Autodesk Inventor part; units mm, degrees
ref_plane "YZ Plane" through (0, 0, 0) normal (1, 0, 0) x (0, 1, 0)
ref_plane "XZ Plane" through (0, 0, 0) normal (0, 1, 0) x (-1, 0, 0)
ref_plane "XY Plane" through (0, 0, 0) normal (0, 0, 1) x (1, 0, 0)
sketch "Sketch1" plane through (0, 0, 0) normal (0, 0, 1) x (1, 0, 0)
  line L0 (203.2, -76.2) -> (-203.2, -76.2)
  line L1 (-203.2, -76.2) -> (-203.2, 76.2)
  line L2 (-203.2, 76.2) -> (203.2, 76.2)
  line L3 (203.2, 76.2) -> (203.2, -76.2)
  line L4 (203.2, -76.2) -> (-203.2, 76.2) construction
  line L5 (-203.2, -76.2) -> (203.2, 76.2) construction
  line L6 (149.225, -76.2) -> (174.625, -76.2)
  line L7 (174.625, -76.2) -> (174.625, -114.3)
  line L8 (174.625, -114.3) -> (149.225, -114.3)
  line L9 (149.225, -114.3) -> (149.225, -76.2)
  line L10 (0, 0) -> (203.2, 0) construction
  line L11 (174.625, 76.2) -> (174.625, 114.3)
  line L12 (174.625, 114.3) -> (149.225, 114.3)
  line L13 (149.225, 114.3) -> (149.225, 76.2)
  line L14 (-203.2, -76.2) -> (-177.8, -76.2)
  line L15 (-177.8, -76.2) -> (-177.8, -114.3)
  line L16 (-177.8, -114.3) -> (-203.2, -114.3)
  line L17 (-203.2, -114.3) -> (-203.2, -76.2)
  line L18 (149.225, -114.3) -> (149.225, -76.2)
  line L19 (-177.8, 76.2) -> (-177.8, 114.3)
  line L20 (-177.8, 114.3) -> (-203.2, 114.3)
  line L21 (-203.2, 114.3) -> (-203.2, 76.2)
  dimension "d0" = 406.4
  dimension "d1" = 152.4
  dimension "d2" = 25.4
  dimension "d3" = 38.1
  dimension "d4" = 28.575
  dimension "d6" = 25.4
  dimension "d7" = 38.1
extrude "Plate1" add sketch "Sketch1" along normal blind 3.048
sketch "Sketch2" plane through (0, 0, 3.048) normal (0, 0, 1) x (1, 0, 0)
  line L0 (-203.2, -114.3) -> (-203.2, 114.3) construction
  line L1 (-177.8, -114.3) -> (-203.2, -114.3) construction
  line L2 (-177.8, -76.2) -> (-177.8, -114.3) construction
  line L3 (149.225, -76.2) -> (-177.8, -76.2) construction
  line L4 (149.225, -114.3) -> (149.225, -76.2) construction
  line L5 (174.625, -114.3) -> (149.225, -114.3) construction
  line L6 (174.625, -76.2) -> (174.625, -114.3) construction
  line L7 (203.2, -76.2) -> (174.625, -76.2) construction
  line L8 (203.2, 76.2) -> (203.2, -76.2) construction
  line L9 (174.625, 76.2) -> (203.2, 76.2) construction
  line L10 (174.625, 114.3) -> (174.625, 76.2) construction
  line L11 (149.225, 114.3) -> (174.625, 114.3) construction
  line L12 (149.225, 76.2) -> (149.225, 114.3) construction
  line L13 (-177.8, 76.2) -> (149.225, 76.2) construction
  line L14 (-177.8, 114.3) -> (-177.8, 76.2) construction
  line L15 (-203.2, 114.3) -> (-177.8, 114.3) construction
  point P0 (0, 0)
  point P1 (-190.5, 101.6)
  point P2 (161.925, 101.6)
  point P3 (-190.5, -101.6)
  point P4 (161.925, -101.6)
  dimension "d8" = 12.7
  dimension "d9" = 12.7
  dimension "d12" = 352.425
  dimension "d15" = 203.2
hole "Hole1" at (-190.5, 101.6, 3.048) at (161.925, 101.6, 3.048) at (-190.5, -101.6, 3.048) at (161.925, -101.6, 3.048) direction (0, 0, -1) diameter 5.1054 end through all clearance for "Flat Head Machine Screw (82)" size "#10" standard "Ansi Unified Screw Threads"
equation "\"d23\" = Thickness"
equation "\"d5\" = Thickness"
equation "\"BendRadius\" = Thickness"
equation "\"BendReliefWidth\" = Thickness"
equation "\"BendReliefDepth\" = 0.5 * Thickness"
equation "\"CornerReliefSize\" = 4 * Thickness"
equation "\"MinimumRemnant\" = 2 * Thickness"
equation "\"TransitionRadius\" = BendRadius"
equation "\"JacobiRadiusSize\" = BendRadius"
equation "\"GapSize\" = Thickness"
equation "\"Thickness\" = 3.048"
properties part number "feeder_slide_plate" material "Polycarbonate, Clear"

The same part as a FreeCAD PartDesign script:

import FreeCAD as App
import Part
import Sketcher

V = App.Vector
Q = App.Units.Quantity

doc = App.newDocument("Part")
body = doc.addObject("PartDesign::Body", "Body")

sketch1 = body.newObject("Sketcher::SketchObject", "Sketch")
sketch1.AttachmentSupport = (doc.getObject("XY_Plane"), [""])
sketch1.MapMode = "FlatFace"
sketch1.addGeometry(Part.LineSegment(V(175, -76, 0), V(203, -76, 0)), False)
sketch1.addGeometry(Part.LineSegment(V(203, -76, 0), V(203, 76, 0)), False)
sketch1.addGeometry(Part.LineSegment(V(203, 76, 0), V(175, 76, 0)), False)
sketch1.addGeometry(Part.LineSegment(V(175, 76, 0), V(175, 114, 0)), False)
sketch1.addGeometry(Part.LineSegment(V(175, 114, 0), V(149, 114, 0)), False)
sketch1.addGeometry(Part.LineSegment(V(149, 114, 0), V(149, 76, 0)), False)
sketch1.addGeometry(Part.LineSegment(V(149, 76, 0), V(-178, 76, 0)), False)
sketch1.addGeometry(Part.LineSegment(V(-178, 76, 0), V(-178, 114, 0)), False)
sketch1.addGeometry(Part.LineSegment(V(-178, 114, 0), V(-203, 114, 0)), False)
sketch1.addGeometry(Part.LineSegment(V(-203, 114, 0), V(-203, -114, 0)), False)
sketch1.addGeometry(Part.LineSegment(V(-203, -114, 0), V(-178, -114, 0)), False)
sketch1.addGeometry(Part.LineSegment(V(-178, -114, 0), V(-178, -76, 0)), False)
sketch1.addGeometry(Part.LineSegment(V(-178, -76, 0), V(149, -76, 0)), False)
sketch1.addGeometry(Part.LineSegment(V(149, -76, 0), V(149, -114, 0)), False)
sketch1.addGeometry(Part.LineSegment(V(149, -114, 0), V(175, -114, 0)), False)
sketch1.addGeometry(Part.LineSegment(V(175, -114, 0), V(175, -76, 0)), False)
sketch1.addConstraint(Sketcher.Constraint("Coincident", 0, 2, 1, 1))
sketch1.addConstraint(Sketcher.Constraint("Coincident", 1, 2, 2, 1))
sketch1.addConstraint(Sketcher.Constraint("Coincident", 2, 2, 3, 1))
sketch1.addConstraint(Sketcher.Constraint("Coincident", 3, 2, 4, 1))
sketch1.addConstraint(Sketcher.Constraint("Coincident", 4, 2, 5, 1))
sketch1.addConstraint(Sketcher.Constraint("Coincident", 5, 2, 6, 1))
sketch1.addConstraint(Sketcher.Constraint("Coincident", 6, 2, 7, 1))
sketch1.addConstraint(Sketcher.Constraint("Coincident", 7, 2, 8, 1))
sketch1.addConstraint(Sketcher.Constraint("Coincident", 8, 2, 9, 1))
sketch1.addConstraint(Sketcher.Constraint("Coincident", 9, 2, 10, 1))
sketch1.addConstraint(Sketcher.Constraint("Coincident", 10, 2, 11, 1))
sketch1.addConstraint(Sketcher.Constraint("Coincident", 11, 2, 12, 1))
sketch1.addConstraint(Sketcher.Constraint("Coincident", 12, 2, 13, 1))
sketch1.addConstraint(Sketcher.Constraint("Coincident", 13, 2, 14, 1))
sketch1.addConstraint(Sketcher.Constraint("Coincident", 14, 2, 15, 1))
sketch1.addConstraint(Sketcher.Constraint("Coincident", 15, 2, 0, 1))
sketch1.addConstraint(Sketcher.Constraint("Horizontal", 0))
sketch1.addConstraint(Sketcher.Constraint("Vertical", 1))
sketch1.addConstraint(Sketcher.Constraint("Horizontal", 2))
sketch1.addConstraint(Sketcher.Constraint("Vertical", 3))
sketch1.addConstraint(Sketcher.Constraint("Horizontal", 4))
sketch1.addConstraint(Sketcher.Constraint("Vertical", 5))
sketch1.addConstraint(Sketcher.Constraint("Horizontal", 6))
sketch1.addConstraint(Sketcher.Constraint("Vertical", 7))
sketch1.addConstraint(Sketcher.Constraint("Horizontal", 8))
sketch1.addConstraint(Sketcher.Constraint("Vertical", 9))
sketch1.addConstraint(Sketcher.Constraint("Horizontal", 10))
sketch1.addConstraint(Sketcher.Constraint("Vertical", 11))
sketch1.addConstraint(Sketcher.Constraint("Horizontal", 12))
sketch1.addConstraint(Sketcher.Constraint("Vertical", 13))
sketch1.addConstraint(Sketcher.Constraint("Horizontal", 14))
sketch1.addConstraint(Sketcher.Constraint("Vertical", 15))
sketch1.addConstraint(Sketcher.Constraint("Symmetric", 7, 2, 10, 2, -1))
sketch1.addConstraint(Sketcher.Constraint("Symmetric", 5, 2, 12, 2, -1))
sketch1.addConstraint(Sketcher.Constraint("Symmetric", 3, 2, 14, 2, -1))
sketch1.addConstraint(Sketcher.Constraint("Horizontal", 2, 2, 5, 2))
sketch1.addConstraint(Sketcher.Constraint("Horizontal", 4, 2, 7, 2))
sketch1.addConstraint(Sketcher.Constraint("Horizontal", 0, 2, 11, 2))
sketch1.addConstraint(Sketcher.Constraint("Equal", 4, 8))
sketch1.addConstraint(Sketcher.Constraint("DistanceX", 4, 2, 4, 1, Q("1 in")))
sketch1.addConstraint(Sketcher.Constraint("DistanceY", 1, 1, 1, 2, Q("6 in")))
sketch1.addConstraint(Sketcher.Constraint("DistanceY", 3, 1, 3, 2, Q("1.5 in")))
sketch1.addConstraint(Sketcher.Constraint("DistanceX", 9, 2, 0, 2, Q("16 in")))
sketch1.addConstraint(Sketcher.Constraint("DistanceX", 0, 1, 0, 2, Q("1.125 in")))
sketch1.addConstraint(Sketcher.Constraint("DistanceX", -1, 1, 0, 2, Q("8 in")))
pad1 = body.newObject("PartDesign::Pad", "Pad")
pad1.Profile = sketch1
pad1.Length = Q("0.12 in")

sketch2 = body.newObject("Sketcher::SketchObject", "Sketch001")
sketch2.AttachmentSupport = (doc.getObject("XY_Plane"), [""])
sketch2.MapMode = "FlatFace"
sketch2.AttachmentOffset = App.Placement(V(0, 0, 0.12 * 25.4), App.Rotation())
sketch2.addGeometry(Part.Circle(V(-190.5, 101.6, 0), V(0, 0, 1), 2.6), False)
sketch2.addGeometry(Part.Circle(V(161.9, 101.6, 0), V(0, 0, 1), 2.6), False)
sketch2.addGeometry(Part.Circle(V(-190.5, -101.6, 0), V(0, 0, 1), 2.6), False)
sketch2.addGeometry(Part.Circle(V(161.9, -101.6, 0), V(0, 0, 1), 2.6), False)
sketch2.addConstraint(Sketcher.Constraint("Equal", 0, 1))
sketch2.addConstraint(Sketcher.Constraint("Equal", 1, 2))
sketch2.addConstraint(Sketcher.Constraint("Equal", 2, 3))
sketch2.addConstraint(Sketcher.Constraint("Symmetric", 0, 3, 2, 3, -1))
sketch2.addConstraint(Sketcher.Constraint("Symmetric", 1, 3, 3, 3, -1))
sketch2.addConstraint(Sketcher.Constraint("Horizontal", 0, 3, 1, 3))
sketch2.addConstraint(Sketcher.Constraint("Diameter", 0, Q("0.201 in")))
sketch2.addConstraint(Sketcher.Constraint("DistanceY", -1, 1, 0, 3, Q("4 in")))
sketch2.addConstraint(Sketcher.Constraint("DistanceX", 0, 3, -1, 1, Q("7.5 in")))
sketch2.addConstraint(Sketcher.Constraint("DistanceX", -1, 1, 1, 3, Q("6.375 in")))
doc.recompute()
hole = body.newObject("PartDesign::Hole", "Hole")
hole.Profile = sketch2
hole.ThreadType = "None"
hole.Diameter = Q("0.201 in")
hole.DepthType = "ThroughAll"

doc.recompute()
